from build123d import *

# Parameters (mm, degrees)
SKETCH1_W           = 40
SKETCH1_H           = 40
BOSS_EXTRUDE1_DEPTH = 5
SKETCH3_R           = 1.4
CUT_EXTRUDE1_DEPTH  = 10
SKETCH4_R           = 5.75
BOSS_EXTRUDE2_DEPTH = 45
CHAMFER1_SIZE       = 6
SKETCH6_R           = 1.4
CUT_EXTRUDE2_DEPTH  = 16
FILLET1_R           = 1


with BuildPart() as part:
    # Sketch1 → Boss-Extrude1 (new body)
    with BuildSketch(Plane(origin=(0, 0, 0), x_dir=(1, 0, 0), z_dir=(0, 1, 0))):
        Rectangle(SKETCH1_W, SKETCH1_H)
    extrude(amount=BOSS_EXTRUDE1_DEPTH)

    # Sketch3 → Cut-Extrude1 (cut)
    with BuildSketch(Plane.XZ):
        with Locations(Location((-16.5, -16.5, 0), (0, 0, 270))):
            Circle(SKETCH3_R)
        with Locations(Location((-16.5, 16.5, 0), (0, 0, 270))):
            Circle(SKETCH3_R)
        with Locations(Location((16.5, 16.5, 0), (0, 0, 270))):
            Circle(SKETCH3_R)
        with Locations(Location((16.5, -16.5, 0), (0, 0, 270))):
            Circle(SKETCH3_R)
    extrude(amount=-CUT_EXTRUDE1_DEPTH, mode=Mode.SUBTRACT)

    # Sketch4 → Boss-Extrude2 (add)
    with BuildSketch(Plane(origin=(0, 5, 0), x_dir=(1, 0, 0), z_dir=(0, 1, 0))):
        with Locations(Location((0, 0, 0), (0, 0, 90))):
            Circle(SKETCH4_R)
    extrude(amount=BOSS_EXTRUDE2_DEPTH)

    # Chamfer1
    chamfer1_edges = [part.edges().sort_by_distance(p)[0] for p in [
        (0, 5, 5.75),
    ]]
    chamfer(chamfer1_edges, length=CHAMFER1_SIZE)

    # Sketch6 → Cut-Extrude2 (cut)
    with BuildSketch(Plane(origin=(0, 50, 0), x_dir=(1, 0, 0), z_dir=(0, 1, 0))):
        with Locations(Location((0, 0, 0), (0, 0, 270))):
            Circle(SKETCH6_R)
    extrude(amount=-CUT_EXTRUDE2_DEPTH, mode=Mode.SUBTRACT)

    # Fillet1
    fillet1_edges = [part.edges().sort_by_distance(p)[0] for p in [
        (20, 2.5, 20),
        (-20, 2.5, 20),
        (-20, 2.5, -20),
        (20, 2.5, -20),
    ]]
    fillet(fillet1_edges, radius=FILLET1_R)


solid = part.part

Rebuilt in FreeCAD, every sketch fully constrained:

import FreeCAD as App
import Part
import Sketcher

V = App.Vector
Q = App.Units.Quantity


def edges_at(feature, points):
    """Names of the edges that pass closest to the given points."""
    edges = feature.Shape.Edges
    near = lambda p: min(range(len(edges)), key=lambda i: edges[i].distToShape(Part.Vertex(*p))[0])
    return sorted({f"Edge{near(p) + 1}" for p in points})

doc = App.newDocument("Part")
body = doc.addObject("PartDesign::Body", "Body")

# Sketch on XZ plane
sketch1 = doc.addObject("Sketcher::SketchObject", "Sketch")
body.addObject(sketch1)
sketch1.AttachmentSupport = (doc.XZ_Plane, [""])
sketch1.MapMode = "FlatFace"
sketch1.addGeometry([
    Part.LineSegment(V(-20, -20, 0), V(-20, 20, 0)),
    Part.LineSegment(V(-20, 20, 0), V(20, 20, 0)),
    Part.LineSegment(V(20, 20, 0), V(20, -20, 0)),
    Part.LineSegment(V(20, -20, 0), V(-20, -20, 0)),
], False)
sketch1.addConstraint([
    Sketcher.Constraint("Coincident", 0, 2, 1, 1),
    Sketcher.Constraint("Coincident", 1, 2, 2, 1),
    Sketcher.Constraint("Coincident", 2, 2, 3, 1),
    Sketcher.Constraint("Coincident", 3, 2, 0, 1),
    Sketcher.Constraint("Vertical", 0),
    Sketcher.Constraint("Horizontal", 1),
    Sketcher.Constraint("Vertical", 2),
    Sketcher.Constraint("Horizontal", 3),
    Sketcher.Constraint("Symmetric", 0, 2, 2, 2, -1, 1),
    Sketcher.Constraint("Equal", 3, 0),
    Sketcher.Constraint("DistanceX", 1, 1, 1, 2, Q("40 mm")),
])
pad1 = doc.addObject("PartDesign::Pad", "Pad")
body.addObject(pad1)
pad1.Profile = sketch1
pad1.Length = 5
pad1.Reversed = True

# Sketch on XZ plane
sketch2 = doc.addObject("Sketcher::SketchObject", "Sketch001")
body.addObject(sketch2)
sketch2.AttachmentSupport = (doc.XZ_Plane, [""])
sketch2.MapMode = "FlatFace"
sketch2.addGeometry([
    Part.Circle(V(-16.5, -16.5, 0), V(0, 0, 1), 1.4),
    Part.Circle(V(-16.5, 16.5, 0), V(0, 0, 1), 1.4),
    Part.Circle(V(16.5, 16.5, 0), V(0, 0, 1), 1.4),
    Part.Circle(V(16.5, -16.5, 0), V(0, 0, 1), 1.4),
], False)
sketch2.addConstraint([
    Sketcher.Constraint("Equal", 0, 1),
    Sketcher.Constraint("Equal", 1, 2),
    Sketcher.Constraint("Equal", 2, 3),
    Sketcher.Constraint("Symmetric", 0, 3, 2, 3, -1, 1),
    Sketcher.Constraint("Symmetric", 1, 3, 3, 3, -1, 1),
    Sketcher.Constraint("Symmetric", 1, 3, 2, 3, -2),
    Sketcher.Constraint("Diameter", 0, Q("2.8 mm")),
    Sketcher.Constraint("DistanceY", 0, 3, 1, 3, Q("33 mm")),
    Sketcher.Constraint("DistanceX", 1, 3, 2, 3, Q("33 mm")),
])
pocket1 = doc.addObject("PartDesign::Pocket", "Pocket")
body.addObject(pocket1)
pocket1.Profile = sketch2
pocket1.Length = 10

# Sketch on XZ plane
sketch3 = doc.addObject("Sketcher::SketchObject", "Sketch002")
body.addObject(sketch3)
sketch3.AttachmentSupport = (doc.XZ_Plane, [""])
sketch3.MapMode = "FlatFace"
sketch3.AttachmentOffset = App.Placement(V(0, 0, -5), App.Rotation())
sketch3.addGeometry(Part.Circle(V(0, 0, 0), V(0, 0, 1), 5.75), False)
sketch3.addConstraint([
    Sketcher.Constraint("Coincident", 0, 3, -1, 1),
    Sketcher.Constraint("Diameter", 0, Q("11.5 mm")),
])
pad2 = doc.addObject("PartDesign::Pad", "Pad001")
body.addObject(pad2)
pad2.Profile = sketch3
pad2.Length = 45
pad2.Reversed = True
doc.recompute()

chamfer = doc.addObject("PartDesign::Chamfer", "Chamfer")
body.addObject(chamfer)
chamfer.Base = (pad2, edges_at(pad2, [(0, 5, 5.75)]))
chamfer.Size = 6

# Sketch on XZ plane
sketch4 = doc.addObject("Sketcher::SketchObject", "Sketch003")
body.addObject(sketch4)
sketch4.AttachmentSupport = (doc.XZ_Plane, [""])
sketch4.MapMode = "FlatFace"
sketch4.AttachmentOffset = App.Placement(V(0, 0, -50), App.Rotation())
sketch4.addGeometry(Part.Circle(V(0, 0, 0), V(0, 0, 1), 1.4), False)
sketch4.addConstraint([
    Sketcher.Constraint("Coincident", 0, 3, -1, 1),
    Sketcher.Constraint("Diameter", 0, Q("2.8 mm")),
])
pocket2 = doc.addObject("PartDesign::Pocket", "Pocket001")
body.addObject(pocket2)
pocket2.Profile = sketch4
pocket2.Length = 16
pocket2.Reversed = True
doc.recompute()

fillet = doc.addObject("PartDesign::Fillet", "Fillet")
body.addObject(fillet)
fillet.Base = (pocket2, edges_at(pocket2, [
    (20, 2.5, 20),
    (-20, 2.5, 20),
    (-20, 2.5, -20),
    (20, 2.5, -20),
]))
fillet.Radius = 1

doc.recompute()
